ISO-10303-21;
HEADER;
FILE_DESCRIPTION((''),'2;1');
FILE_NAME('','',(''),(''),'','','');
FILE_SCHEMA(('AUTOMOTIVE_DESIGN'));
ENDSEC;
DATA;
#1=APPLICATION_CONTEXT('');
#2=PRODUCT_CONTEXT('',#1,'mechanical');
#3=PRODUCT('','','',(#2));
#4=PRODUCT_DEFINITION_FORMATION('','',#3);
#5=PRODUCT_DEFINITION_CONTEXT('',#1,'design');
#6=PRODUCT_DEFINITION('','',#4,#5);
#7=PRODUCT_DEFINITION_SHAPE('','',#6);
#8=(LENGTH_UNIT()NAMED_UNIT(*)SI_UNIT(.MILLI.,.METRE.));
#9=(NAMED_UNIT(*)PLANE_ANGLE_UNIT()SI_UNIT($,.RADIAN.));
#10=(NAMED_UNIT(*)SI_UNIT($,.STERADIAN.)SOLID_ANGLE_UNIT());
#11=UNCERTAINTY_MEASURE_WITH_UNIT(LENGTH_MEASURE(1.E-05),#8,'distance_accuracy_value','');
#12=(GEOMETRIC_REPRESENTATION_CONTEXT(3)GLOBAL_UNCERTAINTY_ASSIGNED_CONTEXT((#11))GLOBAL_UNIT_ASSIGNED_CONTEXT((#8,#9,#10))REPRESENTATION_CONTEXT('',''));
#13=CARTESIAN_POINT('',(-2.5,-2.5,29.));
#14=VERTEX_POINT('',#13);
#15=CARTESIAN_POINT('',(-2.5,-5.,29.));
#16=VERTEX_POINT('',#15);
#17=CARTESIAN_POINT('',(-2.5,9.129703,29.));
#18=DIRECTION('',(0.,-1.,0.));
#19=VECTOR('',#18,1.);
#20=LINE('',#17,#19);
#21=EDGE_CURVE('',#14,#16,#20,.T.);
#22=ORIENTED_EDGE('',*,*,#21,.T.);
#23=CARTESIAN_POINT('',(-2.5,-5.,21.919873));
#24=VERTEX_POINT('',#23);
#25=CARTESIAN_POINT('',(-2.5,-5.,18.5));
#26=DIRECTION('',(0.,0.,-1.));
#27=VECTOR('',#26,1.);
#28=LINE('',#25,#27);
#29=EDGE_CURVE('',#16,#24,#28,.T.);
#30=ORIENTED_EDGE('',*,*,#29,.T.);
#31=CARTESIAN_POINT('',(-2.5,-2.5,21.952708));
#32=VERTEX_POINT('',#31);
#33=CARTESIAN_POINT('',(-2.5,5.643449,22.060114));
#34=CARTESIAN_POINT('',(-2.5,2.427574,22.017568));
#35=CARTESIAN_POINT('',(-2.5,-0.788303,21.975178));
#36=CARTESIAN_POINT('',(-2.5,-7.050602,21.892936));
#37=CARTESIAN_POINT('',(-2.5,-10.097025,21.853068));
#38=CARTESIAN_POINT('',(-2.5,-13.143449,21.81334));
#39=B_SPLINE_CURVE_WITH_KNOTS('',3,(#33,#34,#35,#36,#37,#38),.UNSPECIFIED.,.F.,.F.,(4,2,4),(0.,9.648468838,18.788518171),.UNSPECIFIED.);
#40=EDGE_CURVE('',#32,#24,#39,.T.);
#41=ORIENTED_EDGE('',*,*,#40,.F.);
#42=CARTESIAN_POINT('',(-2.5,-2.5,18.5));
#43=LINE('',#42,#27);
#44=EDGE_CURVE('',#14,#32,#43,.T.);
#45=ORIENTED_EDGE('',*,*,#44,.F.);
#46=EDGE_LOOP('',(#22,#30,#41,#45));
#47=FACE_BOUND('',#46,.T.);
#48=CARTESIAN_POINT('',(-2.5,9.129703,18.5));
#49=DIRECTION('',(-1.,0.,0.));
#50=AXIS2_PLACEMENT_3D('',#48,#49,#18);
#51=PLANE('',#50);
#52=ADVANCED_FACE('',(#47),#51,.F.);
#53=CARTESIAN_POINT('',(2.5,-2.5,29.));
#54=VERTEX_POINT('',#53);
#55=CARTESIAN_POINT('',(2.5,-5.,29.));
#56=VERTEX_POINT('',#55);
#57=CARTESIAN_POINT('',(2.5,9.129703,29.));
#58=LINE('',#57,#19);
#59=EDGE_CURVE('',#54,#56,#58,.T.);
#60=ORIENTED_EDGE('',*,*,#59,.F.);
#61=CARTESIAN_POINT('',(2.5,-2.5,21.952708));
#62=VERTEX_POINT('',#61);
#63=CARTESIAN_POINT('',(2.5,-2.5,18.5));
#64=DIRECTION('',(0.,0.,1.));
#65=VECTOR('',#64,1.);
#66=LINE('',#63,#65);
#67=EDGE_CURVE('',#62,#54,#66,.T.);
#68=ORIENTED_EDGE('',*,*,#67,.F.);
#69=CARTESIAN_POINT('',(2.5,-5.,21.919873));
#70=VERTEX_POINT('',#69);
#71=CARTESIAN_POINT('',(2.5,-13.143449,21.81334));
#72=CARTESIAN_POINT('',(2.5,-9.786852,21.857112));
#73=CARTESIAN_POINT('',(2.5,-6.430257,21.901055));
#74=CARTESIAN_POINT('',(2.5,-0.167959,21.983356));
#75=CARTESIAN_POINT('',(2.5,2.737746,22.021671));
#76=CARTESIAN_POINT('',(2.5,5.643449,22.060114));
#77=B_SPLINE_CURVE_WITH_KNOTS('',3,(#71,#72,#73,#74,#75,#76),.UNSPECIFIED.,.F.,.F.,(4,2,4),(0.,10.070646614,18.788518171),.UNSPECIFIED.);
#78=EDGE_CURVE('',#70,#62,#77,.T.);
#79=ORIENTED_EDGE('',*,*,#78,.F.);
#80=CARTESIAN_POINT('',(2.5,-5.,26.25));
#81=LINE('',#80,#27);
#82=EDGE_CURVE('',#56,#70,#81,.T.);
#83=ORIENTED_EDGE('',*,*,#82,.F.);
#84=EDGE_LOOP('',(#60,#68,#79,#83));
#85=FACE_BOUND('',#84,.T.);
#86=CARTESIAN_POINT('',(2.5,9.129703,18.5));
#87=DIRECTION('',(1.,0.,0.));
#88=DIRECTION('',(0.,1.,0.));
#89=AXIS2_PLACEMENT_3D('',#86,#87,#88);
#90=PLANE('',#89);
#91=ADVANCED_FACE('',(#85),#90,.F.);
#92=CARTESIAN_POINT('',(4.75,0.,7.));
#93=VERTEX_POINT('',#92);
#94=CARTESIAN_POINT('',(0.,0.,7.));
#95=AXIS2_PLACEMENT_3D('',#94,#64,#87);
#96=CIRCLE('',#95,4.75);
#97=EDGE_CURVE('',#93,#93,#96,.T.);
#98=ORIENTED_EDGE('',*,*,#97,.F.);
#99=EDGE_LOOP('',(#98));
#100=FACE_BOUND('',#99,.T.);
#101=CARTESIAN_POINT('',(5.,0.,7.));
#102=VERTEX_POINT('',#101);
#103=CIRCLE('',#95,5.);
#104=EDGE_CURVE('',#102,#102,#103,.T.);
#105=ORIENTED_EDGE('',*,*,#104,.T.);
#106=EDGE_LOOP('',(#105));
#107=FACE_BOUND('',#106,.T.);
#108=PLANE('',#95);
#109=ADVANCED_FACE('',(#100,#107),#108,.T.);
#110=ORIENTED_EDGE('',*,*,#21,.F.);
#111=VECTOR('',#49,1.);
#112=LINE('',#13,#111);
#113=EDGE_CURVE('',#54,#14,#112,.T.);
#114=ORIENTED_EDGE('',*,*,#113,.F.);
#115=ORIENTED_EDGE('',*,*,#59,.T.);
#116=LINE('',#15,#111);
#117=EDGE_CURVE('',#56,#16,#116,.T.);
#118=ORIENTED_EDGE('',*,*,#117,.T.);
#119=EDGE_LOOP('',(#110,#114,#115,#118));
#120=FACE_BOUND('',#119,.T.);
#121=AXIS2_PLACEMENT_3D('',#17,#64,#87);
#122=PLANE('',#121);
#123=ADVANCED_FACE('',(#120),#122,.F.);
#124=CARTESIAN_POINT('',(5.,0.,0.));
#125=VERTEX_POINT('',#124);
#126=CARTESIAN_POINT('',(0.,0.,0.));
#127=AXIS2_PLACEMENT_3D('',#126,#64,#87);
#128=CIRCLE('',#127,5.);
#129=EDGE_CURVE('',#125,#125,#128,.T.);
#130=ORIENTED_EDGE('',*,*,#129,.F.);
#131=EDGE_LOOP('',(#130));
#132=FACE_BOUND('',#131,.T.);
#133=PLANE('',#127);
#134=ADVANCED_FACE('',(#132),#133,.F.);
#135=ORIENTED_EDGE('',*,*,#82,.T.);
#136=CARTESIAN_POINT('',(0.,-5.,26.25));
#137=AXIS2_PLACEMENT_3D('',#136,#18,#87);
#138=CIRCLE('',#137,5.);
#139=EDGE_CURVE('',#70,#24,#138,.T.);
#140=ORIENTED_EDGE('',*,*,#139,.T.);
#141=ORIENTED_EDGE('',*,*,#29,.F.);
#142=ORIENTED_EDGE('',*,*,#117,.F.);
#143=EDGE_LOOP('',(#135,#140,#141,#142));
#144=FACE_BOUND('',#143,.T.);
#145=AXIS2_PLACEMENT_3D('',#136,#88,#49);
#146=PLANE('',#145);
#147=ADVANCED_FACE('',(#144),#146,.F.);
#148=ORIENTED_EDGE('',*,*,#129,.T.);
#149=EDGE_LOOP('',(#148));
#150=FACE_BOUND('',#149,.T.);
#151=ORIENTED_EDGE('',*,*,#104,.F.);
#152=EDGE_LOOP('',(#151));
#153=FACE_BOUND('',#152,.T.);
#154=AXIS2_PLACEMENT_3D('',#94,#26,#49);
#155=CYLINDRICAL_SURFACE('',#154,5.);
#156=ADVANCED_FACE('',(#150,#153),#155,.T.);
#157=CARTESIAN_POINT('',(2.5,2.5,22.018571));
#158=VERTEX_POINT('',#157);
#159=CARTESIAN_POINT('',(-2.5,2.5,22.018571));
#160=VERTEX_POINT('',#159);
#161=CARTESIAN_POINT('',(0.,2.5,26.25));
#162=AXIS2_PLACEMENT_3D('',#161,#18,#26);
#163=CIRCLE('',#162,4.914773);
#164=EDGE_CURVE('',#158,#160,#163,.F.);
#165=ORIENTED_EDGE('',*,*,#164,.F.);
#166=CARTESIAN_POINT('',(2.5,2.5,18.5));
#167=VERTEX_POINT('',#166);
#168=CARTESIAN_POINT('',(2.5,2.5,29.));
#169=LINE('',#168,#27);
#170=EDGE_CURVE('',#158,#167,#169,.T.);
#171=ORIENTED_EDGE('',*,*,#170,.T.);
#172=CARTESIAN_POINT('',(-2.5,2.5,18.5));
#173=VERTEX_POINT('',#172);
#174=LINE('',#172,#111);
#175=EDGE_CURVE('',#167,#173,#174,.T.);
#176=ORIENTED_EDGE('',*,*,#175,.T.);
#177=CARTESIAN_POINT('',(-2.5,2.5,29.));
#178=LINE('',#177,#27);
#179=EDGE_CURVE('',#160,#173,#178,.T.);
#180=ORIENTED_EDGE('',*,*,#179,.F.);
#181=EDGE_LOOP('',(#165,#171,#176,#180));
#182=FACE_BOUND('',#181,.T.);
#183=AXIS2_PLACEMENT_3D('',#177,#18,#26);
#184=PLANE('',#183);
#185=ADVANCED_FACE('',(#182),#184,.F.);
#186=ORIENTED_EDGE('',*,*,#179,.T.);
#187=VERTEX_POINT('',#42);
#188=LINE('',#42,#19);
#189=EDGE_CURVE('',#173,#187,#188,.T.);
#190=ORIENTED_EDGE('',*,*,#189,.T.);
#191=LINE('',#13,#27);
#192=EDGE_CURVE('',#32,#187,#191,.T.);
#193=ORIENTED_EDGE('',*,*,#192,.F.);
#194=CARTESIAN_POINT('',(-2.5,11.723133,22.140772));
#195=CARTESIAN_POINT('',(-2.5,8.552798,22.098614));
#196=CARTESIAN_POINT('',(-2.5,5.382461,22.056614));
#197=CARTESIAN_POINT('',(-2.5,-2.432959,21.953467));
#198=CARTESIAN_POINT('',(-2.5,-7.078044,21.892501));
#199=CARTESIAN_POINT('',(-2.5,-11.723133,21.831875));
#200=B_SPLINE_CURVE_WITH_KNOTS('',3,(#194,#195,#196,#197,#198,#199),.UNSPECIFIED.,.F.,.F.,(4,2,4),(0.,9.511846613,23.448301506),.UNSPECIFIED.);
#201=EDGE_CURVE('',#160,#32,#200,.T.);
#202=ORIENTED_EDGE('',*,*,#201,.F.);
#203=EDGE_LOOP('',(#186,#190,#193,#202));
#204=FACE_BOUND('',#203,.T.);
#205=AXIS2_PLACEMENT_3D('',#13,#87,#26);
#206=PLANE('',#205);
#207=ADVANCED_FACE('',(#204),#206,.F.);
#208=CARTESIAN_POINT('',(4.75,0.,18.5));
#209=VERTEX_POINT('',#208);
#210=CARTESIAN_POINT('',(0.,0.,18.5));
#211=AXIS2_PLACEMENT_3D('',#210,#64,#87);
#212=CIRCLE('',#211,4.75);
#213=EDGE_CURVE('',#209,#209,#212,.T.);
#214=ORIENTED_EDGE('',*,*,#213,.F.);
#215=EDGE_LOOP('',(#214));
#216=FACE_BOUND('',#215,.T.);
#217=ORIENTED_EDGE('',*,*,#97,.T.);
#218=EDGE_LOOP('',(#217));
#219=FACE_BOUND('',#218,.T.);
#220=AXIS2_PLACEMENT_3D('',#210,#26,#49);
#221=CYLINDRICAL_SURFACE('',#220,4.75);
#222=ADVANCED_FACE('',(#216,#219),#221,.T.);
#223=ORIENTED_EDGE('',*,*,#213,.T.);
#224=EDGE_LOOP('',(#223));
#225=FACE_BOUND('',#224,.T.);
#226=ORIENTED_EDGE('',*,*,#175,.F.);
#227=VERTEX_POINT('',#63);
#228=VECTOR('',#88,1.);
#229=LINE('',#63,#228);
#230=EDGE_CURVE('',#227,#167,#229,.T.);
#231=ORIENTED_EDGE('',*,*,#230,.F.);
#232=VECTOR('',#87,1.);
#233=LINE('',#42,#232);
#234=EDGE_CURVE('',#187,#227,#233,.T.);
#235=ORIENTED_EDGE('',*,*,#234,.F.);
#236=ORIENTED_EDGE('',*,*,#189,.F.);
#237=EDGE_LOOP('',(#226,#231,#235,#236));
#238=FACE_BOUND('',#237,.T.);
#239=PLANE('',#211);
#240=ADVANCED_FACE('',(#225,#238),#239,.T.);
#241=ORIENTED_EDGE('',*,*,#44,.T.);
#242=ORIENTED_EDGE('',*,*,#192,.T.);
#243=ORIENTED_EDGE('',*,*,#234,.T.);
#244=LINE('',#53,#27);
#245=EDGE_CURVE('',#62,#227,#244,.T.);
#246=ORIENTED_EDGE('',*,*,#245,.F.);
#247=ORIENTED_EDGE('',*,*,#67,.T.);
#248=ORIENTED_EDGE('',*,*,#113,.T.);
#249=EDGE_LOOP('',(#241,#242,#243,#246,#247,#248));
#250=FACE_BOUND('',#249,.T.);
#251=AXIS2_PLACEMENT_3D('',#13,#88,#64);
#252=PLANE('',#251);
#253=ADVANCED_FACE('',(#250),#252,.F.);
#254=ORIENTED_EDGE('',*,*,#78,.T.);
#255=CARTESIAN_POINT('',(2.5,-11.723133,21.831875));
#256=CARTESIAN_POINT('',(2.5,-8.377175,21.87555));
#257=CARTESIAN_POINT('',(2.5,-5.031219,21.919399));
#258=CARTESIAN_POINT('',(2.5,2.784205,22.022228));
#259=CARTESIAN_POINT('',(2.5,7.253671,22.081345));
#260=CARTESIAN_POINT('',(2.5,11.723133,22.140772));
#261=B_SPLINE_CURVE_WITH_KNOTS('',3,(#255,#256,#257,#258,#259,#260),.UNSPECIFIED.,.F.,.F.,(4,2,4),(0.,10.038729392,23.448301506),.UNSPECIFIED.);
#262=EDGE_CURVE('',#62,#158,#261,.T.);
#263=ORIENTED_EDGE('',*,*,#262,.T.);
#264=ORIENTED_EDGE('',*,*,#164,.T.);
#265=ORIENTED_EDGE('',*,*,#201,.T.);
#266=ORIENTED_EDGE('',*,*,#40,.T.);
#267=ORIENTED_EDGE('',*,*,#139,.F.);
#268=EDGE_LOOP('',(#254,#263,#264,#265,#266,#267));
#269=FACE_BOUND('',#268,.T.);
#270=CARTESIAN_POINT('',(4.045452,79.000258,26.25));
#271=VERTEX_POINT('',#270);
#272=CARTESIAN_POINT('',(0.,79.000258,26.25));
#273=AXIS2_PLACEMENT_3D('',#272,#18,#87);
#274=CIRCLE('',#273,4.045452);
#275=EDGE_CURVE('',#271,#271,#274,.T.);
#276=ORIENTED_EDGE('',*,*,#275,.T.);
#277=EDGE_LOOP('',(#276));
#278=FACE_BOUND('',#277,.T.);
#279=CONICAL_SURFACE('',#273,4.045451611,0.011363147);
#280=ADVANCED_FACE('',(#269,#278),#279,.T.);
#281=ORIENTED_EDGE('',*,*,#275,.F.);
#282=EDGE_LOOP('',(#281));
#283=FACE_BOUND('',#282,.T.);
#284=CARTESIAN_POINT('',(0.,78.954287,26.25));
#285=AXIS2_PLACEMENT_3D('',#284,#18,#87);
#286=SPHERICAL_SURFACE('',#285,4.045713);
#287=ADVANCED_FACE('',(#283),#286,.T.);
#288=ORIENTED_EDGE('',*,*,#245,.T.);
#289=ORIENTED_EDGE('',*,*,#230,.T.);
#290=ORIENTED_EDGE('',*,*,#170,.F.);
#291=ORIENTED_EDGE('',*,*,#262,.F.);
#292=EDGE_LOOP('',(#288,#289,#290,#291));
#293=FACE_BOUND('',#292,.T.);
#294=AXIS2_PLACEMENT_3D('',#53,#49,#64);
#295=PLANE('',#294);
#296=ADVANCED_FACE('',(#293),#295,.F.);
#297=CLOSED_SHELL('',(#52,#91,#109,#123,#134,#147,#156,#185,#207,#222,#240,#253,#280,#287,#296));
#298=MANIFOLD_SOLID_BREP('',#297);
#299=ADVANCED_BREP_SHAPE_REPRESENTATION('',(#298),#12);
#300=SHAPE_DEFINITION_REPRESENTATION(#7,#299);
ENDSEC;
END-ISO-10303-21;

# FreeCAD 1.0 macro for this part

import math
import FreeCAD as App
import Part
import Sketcher
Q = App.Units.Quantity

doc = App.newDocument("Part")
body = doc.addObject("PartDesign::Body", "Body")

sketch1 = doc.addObject("Sketcher::SketchObject", "Sketch")
body.addObject(sketch1)
sketch1.AttachmentSupport = (doc.XY_Plane, [""])
sketch1.MapMode = "FlatFace"
sketch1.addGeometry(Part.Circle(App.Vector(0, 0, 0), App.Vector(0, 0, 1), 5), False)
sketch1.addConstraint([
    Sketcher.Constraint("Coincident", 0, 3, -1, 1),
    Sketcher.Constraint("Diameter", 0, Q("10 mm")),
])
pad1 = doc.addObject("PartDesign::Pad", "Pad")
body.addObject(pad1)
pad1.Profile = sketch1
pad1.Length = 7

sketch2 = doc.addObject("Sketcher::SketchObject", "Sketch001")
body.addObject(sketch2)
sketch2.AttachmentSupport = (doc.XY_Plane, [""])
sketch2.MapMode = "FlatFace"
sketch2.AttachmentOffset = App.Placement(App.Vector(0, 0, 7), App.Rotation())
sketch2.addGeometry(Part.Circle(App.Vector(0, 0, 0), App.Vector(0, 0, 1), 4.75), False)
sketch2.addConstraint([
    Sketcher.Constraint("Coincident", 0, 3, -1, 1),
    Sketcher.Constraint("Diameter", 0, Q("9.5 mm")),
])
pad2 = doc.addObject("PartDesign::Pad", "Pad001")
body.addObject(pad2)
pad2.Profile = sketch2
pad2.Length = 11.5
body2 = doc.addObject("PartDesign::Body", "Body001")

sketch3 = doc.addObject("Sketcher::SketchObject", "Sketch002")
body2.addObject(sketch3)
sketch3.AttachmentSupport = (doc.getObject("XY_Plane001"), [""])
sketch3.MapMode = "FlatFace"
sketch3.AttachmentOffset = App.Placement(App.Vector(0, 0, 26.25), App.Rotation())
sketch3.addGeometry([
    Part.LineSegment(App.Vector(-5, -5, 0), App.Vector(0, -5, 0)),
    Part.LineSegment(App.Vector(0, -5, 0), App.Vector(0, 83, 0)),
    Part.ArcOfCircle(Part.Circle(App.Vector(0, 78.954287, 0), App.Vector(0, 0, 1), 4.045713), math.radians(90), math.radians(179.34894)),
    Part.LineSegment(App.Vector(-4.045452, 79.000258, 0), App.Vector(-5, -5, 0)),
], False)
sketch3.addConstraint([
    Sketcher.Constraint("Coincident", 0, 2, 1, 1),
    Sketcher.Constraint("Coincident", 1, 2, 2, 1),
    Sketcher.Constraint("Tangent", 2, 2, 3, 1),
    Sketcher.Constraint("Coincident", 3, 2, 0, 1),
    Sketcher.Constraint("Horizontal", 0),
    Sketcher.Constraint("Vertical", 1),
    Sketcher.Constraint("PointOnObject", 2, 3, -2),
    Sketcher.Constraint("PointOnObject", 0, 2, -2),
    Sketcher.Constraint("DistanceX", 0, 1, 0, 2, Q("5 mm")),
    Sketcher.Constraint("DistanceY", 1, 1, 1, 2, Q("88 mm")),
    Sketcher.Constraint("DistanceY", 0, 2, -1, 1, Q("5 mm")),
    Sketcher.Constraint("Radius", 2, Q("4.045713 mm")),
])
revolution = doc.addObject("PartDesign::Revolution", "Revolution")
body2.addObject(revolution)
revolution.Profile = sketch3
revolution.ReferenceAxis = (sketch3, ["V_Axis"])
revolution.Angle = 360
body.AllowCompound = True
doc.recompute()

boolean = doc.addObject("PartDesign::Boolean", "Boolean")
body.addObject(boolean)
boolean.Type = "Fuse"
boolean.addObjects([body2])

sketch4 = doc.addObject("Sketcher::SketchObject", "Sketch003")
body.addObject(sketch4)
sketch4.AttachmentSupport = (doc.XY_Plane, [""])
sketch4.MapMode = "FlatFace"
sketch4.AttachmentOffset = App.Placement(App.Vector(0, 0, 18.5), App.Rotation())
sketch4.addGeometry([
    Part.LineSegment(App.Vector(-2.5, 2.5, 0), App.Vector(-2.5, -2.5, 0)),
    Part.LineSegment(App.Vector(-2.5, -2.5, 0), App.Vector(2.5, -2.5, 0)),
    Part.LineSegment(App.Vector(2.5, -2.5, 0), App.Vector(2.5, 2.5, 0)),
    Part.LineSegment(App.Vector(2.5, 2.5, 0), App.Vector(-2.5, 2.5, 0)),
], False)
sketch4.addConstraint([
    Sketcher.Constraint("Coincident", 0, 2, 1, 1),
    Sketcher.Constraint("Coincident", 1, 2, 2, 1),
    Sketcher.Constraint("Coincident", 2, 2, 3, 1),
    Sketcher.Constraint("Coincident", 3, 2, 0, 1),
    Sketcher.Constraint("Vertical", 0),
    Sketcher.Constraint("Horizontal", 1),
    Sketcher.Constraint("Vertical", 2),
    Sketcher.Constraint("Horizontal", 3),
    Sketcher.Constraint("Symmetric", 0, 2, 2, 2, -1, 1),
    Sketcher.Constraint("Equal", 3, 0),
    Sketcher.Constraint("DistanceX", 1, 1, 1, 2, Q("5 mm")),
])
pad3 = doc.addObject("PartDesign::Pad", "Pad002")
body.addObject(pad3)
pad3.Profile = sketch4
pad3.Length = 10.5

sketch5 = doc.addObject("Sketcher::SketchObject", "Sketch004")
body.addObject(sketch5)
sketch5.AttachmentSupport = (doc.XZ_Plane, [""])
sketch5.MapMode = "FlatFace"
sketch5.AttachmentOffset = App.Placement(App.Vector(0, 0, 5), App.Rotation())
sketch5.addGeometry([
    Part.LineSegment(App.Vector(-2.5, 29, 0), App.Vector(-2.5, 18.5, 0)),
    Part.LineSegment(App.Vector(-2.5, 18.5, 0), App.Vector(2.5, 18.5, 0)),
    Part.LineSegment(App.Vector(2.5, 18.5, 0), App.Vector(2.5, 29, 0)),
    Part.LineSegment(App.Vector(2.5, 29, 0), App.Vector(-2.5, 29, 0)),
], False)
sketch5.addConstraint([
    Sketcher.Constraint("Coincident", 0, 2, 1, 1),
    Sketcher.Constraint("Coincident", 1, 2, 2, 1),
    Sketcher.Constraint("Coincident", 2, 2, 3, 1),
    Sketcher.Constraint("Coincident", 3, 2, 0, 1),
    Sketcher.Constraint("Vertical", 0),
    Sketcher.Constraint("Horizontal", 1),
    Sketcher.Constraint("Vertical", 2),
    Sketcher.Constraint("Horizontal", 3),
    Sketcher.Constraint("DistanceX", 1, 1, 1, 2, Q("5 mm")),
    Sketcher.Constraint("DistanceY", 0, 2, 0, 1, Q("10.5 mm")),
    Sketcher.Constraint("DistanceY", -1, 1, 2, 2, Q("29 mm")),
    Sketcher.Constraint("DistanceX", 0, 2, -1, 1, Q("2.5 mm")),
])
pocket1 = doc.addObject("PartDesign::Pocket", "Pocket")
body.addObject(pocket1)
pocket1.Profile = sketch5
pocket1.Length = 2.5

doc.recompute()
